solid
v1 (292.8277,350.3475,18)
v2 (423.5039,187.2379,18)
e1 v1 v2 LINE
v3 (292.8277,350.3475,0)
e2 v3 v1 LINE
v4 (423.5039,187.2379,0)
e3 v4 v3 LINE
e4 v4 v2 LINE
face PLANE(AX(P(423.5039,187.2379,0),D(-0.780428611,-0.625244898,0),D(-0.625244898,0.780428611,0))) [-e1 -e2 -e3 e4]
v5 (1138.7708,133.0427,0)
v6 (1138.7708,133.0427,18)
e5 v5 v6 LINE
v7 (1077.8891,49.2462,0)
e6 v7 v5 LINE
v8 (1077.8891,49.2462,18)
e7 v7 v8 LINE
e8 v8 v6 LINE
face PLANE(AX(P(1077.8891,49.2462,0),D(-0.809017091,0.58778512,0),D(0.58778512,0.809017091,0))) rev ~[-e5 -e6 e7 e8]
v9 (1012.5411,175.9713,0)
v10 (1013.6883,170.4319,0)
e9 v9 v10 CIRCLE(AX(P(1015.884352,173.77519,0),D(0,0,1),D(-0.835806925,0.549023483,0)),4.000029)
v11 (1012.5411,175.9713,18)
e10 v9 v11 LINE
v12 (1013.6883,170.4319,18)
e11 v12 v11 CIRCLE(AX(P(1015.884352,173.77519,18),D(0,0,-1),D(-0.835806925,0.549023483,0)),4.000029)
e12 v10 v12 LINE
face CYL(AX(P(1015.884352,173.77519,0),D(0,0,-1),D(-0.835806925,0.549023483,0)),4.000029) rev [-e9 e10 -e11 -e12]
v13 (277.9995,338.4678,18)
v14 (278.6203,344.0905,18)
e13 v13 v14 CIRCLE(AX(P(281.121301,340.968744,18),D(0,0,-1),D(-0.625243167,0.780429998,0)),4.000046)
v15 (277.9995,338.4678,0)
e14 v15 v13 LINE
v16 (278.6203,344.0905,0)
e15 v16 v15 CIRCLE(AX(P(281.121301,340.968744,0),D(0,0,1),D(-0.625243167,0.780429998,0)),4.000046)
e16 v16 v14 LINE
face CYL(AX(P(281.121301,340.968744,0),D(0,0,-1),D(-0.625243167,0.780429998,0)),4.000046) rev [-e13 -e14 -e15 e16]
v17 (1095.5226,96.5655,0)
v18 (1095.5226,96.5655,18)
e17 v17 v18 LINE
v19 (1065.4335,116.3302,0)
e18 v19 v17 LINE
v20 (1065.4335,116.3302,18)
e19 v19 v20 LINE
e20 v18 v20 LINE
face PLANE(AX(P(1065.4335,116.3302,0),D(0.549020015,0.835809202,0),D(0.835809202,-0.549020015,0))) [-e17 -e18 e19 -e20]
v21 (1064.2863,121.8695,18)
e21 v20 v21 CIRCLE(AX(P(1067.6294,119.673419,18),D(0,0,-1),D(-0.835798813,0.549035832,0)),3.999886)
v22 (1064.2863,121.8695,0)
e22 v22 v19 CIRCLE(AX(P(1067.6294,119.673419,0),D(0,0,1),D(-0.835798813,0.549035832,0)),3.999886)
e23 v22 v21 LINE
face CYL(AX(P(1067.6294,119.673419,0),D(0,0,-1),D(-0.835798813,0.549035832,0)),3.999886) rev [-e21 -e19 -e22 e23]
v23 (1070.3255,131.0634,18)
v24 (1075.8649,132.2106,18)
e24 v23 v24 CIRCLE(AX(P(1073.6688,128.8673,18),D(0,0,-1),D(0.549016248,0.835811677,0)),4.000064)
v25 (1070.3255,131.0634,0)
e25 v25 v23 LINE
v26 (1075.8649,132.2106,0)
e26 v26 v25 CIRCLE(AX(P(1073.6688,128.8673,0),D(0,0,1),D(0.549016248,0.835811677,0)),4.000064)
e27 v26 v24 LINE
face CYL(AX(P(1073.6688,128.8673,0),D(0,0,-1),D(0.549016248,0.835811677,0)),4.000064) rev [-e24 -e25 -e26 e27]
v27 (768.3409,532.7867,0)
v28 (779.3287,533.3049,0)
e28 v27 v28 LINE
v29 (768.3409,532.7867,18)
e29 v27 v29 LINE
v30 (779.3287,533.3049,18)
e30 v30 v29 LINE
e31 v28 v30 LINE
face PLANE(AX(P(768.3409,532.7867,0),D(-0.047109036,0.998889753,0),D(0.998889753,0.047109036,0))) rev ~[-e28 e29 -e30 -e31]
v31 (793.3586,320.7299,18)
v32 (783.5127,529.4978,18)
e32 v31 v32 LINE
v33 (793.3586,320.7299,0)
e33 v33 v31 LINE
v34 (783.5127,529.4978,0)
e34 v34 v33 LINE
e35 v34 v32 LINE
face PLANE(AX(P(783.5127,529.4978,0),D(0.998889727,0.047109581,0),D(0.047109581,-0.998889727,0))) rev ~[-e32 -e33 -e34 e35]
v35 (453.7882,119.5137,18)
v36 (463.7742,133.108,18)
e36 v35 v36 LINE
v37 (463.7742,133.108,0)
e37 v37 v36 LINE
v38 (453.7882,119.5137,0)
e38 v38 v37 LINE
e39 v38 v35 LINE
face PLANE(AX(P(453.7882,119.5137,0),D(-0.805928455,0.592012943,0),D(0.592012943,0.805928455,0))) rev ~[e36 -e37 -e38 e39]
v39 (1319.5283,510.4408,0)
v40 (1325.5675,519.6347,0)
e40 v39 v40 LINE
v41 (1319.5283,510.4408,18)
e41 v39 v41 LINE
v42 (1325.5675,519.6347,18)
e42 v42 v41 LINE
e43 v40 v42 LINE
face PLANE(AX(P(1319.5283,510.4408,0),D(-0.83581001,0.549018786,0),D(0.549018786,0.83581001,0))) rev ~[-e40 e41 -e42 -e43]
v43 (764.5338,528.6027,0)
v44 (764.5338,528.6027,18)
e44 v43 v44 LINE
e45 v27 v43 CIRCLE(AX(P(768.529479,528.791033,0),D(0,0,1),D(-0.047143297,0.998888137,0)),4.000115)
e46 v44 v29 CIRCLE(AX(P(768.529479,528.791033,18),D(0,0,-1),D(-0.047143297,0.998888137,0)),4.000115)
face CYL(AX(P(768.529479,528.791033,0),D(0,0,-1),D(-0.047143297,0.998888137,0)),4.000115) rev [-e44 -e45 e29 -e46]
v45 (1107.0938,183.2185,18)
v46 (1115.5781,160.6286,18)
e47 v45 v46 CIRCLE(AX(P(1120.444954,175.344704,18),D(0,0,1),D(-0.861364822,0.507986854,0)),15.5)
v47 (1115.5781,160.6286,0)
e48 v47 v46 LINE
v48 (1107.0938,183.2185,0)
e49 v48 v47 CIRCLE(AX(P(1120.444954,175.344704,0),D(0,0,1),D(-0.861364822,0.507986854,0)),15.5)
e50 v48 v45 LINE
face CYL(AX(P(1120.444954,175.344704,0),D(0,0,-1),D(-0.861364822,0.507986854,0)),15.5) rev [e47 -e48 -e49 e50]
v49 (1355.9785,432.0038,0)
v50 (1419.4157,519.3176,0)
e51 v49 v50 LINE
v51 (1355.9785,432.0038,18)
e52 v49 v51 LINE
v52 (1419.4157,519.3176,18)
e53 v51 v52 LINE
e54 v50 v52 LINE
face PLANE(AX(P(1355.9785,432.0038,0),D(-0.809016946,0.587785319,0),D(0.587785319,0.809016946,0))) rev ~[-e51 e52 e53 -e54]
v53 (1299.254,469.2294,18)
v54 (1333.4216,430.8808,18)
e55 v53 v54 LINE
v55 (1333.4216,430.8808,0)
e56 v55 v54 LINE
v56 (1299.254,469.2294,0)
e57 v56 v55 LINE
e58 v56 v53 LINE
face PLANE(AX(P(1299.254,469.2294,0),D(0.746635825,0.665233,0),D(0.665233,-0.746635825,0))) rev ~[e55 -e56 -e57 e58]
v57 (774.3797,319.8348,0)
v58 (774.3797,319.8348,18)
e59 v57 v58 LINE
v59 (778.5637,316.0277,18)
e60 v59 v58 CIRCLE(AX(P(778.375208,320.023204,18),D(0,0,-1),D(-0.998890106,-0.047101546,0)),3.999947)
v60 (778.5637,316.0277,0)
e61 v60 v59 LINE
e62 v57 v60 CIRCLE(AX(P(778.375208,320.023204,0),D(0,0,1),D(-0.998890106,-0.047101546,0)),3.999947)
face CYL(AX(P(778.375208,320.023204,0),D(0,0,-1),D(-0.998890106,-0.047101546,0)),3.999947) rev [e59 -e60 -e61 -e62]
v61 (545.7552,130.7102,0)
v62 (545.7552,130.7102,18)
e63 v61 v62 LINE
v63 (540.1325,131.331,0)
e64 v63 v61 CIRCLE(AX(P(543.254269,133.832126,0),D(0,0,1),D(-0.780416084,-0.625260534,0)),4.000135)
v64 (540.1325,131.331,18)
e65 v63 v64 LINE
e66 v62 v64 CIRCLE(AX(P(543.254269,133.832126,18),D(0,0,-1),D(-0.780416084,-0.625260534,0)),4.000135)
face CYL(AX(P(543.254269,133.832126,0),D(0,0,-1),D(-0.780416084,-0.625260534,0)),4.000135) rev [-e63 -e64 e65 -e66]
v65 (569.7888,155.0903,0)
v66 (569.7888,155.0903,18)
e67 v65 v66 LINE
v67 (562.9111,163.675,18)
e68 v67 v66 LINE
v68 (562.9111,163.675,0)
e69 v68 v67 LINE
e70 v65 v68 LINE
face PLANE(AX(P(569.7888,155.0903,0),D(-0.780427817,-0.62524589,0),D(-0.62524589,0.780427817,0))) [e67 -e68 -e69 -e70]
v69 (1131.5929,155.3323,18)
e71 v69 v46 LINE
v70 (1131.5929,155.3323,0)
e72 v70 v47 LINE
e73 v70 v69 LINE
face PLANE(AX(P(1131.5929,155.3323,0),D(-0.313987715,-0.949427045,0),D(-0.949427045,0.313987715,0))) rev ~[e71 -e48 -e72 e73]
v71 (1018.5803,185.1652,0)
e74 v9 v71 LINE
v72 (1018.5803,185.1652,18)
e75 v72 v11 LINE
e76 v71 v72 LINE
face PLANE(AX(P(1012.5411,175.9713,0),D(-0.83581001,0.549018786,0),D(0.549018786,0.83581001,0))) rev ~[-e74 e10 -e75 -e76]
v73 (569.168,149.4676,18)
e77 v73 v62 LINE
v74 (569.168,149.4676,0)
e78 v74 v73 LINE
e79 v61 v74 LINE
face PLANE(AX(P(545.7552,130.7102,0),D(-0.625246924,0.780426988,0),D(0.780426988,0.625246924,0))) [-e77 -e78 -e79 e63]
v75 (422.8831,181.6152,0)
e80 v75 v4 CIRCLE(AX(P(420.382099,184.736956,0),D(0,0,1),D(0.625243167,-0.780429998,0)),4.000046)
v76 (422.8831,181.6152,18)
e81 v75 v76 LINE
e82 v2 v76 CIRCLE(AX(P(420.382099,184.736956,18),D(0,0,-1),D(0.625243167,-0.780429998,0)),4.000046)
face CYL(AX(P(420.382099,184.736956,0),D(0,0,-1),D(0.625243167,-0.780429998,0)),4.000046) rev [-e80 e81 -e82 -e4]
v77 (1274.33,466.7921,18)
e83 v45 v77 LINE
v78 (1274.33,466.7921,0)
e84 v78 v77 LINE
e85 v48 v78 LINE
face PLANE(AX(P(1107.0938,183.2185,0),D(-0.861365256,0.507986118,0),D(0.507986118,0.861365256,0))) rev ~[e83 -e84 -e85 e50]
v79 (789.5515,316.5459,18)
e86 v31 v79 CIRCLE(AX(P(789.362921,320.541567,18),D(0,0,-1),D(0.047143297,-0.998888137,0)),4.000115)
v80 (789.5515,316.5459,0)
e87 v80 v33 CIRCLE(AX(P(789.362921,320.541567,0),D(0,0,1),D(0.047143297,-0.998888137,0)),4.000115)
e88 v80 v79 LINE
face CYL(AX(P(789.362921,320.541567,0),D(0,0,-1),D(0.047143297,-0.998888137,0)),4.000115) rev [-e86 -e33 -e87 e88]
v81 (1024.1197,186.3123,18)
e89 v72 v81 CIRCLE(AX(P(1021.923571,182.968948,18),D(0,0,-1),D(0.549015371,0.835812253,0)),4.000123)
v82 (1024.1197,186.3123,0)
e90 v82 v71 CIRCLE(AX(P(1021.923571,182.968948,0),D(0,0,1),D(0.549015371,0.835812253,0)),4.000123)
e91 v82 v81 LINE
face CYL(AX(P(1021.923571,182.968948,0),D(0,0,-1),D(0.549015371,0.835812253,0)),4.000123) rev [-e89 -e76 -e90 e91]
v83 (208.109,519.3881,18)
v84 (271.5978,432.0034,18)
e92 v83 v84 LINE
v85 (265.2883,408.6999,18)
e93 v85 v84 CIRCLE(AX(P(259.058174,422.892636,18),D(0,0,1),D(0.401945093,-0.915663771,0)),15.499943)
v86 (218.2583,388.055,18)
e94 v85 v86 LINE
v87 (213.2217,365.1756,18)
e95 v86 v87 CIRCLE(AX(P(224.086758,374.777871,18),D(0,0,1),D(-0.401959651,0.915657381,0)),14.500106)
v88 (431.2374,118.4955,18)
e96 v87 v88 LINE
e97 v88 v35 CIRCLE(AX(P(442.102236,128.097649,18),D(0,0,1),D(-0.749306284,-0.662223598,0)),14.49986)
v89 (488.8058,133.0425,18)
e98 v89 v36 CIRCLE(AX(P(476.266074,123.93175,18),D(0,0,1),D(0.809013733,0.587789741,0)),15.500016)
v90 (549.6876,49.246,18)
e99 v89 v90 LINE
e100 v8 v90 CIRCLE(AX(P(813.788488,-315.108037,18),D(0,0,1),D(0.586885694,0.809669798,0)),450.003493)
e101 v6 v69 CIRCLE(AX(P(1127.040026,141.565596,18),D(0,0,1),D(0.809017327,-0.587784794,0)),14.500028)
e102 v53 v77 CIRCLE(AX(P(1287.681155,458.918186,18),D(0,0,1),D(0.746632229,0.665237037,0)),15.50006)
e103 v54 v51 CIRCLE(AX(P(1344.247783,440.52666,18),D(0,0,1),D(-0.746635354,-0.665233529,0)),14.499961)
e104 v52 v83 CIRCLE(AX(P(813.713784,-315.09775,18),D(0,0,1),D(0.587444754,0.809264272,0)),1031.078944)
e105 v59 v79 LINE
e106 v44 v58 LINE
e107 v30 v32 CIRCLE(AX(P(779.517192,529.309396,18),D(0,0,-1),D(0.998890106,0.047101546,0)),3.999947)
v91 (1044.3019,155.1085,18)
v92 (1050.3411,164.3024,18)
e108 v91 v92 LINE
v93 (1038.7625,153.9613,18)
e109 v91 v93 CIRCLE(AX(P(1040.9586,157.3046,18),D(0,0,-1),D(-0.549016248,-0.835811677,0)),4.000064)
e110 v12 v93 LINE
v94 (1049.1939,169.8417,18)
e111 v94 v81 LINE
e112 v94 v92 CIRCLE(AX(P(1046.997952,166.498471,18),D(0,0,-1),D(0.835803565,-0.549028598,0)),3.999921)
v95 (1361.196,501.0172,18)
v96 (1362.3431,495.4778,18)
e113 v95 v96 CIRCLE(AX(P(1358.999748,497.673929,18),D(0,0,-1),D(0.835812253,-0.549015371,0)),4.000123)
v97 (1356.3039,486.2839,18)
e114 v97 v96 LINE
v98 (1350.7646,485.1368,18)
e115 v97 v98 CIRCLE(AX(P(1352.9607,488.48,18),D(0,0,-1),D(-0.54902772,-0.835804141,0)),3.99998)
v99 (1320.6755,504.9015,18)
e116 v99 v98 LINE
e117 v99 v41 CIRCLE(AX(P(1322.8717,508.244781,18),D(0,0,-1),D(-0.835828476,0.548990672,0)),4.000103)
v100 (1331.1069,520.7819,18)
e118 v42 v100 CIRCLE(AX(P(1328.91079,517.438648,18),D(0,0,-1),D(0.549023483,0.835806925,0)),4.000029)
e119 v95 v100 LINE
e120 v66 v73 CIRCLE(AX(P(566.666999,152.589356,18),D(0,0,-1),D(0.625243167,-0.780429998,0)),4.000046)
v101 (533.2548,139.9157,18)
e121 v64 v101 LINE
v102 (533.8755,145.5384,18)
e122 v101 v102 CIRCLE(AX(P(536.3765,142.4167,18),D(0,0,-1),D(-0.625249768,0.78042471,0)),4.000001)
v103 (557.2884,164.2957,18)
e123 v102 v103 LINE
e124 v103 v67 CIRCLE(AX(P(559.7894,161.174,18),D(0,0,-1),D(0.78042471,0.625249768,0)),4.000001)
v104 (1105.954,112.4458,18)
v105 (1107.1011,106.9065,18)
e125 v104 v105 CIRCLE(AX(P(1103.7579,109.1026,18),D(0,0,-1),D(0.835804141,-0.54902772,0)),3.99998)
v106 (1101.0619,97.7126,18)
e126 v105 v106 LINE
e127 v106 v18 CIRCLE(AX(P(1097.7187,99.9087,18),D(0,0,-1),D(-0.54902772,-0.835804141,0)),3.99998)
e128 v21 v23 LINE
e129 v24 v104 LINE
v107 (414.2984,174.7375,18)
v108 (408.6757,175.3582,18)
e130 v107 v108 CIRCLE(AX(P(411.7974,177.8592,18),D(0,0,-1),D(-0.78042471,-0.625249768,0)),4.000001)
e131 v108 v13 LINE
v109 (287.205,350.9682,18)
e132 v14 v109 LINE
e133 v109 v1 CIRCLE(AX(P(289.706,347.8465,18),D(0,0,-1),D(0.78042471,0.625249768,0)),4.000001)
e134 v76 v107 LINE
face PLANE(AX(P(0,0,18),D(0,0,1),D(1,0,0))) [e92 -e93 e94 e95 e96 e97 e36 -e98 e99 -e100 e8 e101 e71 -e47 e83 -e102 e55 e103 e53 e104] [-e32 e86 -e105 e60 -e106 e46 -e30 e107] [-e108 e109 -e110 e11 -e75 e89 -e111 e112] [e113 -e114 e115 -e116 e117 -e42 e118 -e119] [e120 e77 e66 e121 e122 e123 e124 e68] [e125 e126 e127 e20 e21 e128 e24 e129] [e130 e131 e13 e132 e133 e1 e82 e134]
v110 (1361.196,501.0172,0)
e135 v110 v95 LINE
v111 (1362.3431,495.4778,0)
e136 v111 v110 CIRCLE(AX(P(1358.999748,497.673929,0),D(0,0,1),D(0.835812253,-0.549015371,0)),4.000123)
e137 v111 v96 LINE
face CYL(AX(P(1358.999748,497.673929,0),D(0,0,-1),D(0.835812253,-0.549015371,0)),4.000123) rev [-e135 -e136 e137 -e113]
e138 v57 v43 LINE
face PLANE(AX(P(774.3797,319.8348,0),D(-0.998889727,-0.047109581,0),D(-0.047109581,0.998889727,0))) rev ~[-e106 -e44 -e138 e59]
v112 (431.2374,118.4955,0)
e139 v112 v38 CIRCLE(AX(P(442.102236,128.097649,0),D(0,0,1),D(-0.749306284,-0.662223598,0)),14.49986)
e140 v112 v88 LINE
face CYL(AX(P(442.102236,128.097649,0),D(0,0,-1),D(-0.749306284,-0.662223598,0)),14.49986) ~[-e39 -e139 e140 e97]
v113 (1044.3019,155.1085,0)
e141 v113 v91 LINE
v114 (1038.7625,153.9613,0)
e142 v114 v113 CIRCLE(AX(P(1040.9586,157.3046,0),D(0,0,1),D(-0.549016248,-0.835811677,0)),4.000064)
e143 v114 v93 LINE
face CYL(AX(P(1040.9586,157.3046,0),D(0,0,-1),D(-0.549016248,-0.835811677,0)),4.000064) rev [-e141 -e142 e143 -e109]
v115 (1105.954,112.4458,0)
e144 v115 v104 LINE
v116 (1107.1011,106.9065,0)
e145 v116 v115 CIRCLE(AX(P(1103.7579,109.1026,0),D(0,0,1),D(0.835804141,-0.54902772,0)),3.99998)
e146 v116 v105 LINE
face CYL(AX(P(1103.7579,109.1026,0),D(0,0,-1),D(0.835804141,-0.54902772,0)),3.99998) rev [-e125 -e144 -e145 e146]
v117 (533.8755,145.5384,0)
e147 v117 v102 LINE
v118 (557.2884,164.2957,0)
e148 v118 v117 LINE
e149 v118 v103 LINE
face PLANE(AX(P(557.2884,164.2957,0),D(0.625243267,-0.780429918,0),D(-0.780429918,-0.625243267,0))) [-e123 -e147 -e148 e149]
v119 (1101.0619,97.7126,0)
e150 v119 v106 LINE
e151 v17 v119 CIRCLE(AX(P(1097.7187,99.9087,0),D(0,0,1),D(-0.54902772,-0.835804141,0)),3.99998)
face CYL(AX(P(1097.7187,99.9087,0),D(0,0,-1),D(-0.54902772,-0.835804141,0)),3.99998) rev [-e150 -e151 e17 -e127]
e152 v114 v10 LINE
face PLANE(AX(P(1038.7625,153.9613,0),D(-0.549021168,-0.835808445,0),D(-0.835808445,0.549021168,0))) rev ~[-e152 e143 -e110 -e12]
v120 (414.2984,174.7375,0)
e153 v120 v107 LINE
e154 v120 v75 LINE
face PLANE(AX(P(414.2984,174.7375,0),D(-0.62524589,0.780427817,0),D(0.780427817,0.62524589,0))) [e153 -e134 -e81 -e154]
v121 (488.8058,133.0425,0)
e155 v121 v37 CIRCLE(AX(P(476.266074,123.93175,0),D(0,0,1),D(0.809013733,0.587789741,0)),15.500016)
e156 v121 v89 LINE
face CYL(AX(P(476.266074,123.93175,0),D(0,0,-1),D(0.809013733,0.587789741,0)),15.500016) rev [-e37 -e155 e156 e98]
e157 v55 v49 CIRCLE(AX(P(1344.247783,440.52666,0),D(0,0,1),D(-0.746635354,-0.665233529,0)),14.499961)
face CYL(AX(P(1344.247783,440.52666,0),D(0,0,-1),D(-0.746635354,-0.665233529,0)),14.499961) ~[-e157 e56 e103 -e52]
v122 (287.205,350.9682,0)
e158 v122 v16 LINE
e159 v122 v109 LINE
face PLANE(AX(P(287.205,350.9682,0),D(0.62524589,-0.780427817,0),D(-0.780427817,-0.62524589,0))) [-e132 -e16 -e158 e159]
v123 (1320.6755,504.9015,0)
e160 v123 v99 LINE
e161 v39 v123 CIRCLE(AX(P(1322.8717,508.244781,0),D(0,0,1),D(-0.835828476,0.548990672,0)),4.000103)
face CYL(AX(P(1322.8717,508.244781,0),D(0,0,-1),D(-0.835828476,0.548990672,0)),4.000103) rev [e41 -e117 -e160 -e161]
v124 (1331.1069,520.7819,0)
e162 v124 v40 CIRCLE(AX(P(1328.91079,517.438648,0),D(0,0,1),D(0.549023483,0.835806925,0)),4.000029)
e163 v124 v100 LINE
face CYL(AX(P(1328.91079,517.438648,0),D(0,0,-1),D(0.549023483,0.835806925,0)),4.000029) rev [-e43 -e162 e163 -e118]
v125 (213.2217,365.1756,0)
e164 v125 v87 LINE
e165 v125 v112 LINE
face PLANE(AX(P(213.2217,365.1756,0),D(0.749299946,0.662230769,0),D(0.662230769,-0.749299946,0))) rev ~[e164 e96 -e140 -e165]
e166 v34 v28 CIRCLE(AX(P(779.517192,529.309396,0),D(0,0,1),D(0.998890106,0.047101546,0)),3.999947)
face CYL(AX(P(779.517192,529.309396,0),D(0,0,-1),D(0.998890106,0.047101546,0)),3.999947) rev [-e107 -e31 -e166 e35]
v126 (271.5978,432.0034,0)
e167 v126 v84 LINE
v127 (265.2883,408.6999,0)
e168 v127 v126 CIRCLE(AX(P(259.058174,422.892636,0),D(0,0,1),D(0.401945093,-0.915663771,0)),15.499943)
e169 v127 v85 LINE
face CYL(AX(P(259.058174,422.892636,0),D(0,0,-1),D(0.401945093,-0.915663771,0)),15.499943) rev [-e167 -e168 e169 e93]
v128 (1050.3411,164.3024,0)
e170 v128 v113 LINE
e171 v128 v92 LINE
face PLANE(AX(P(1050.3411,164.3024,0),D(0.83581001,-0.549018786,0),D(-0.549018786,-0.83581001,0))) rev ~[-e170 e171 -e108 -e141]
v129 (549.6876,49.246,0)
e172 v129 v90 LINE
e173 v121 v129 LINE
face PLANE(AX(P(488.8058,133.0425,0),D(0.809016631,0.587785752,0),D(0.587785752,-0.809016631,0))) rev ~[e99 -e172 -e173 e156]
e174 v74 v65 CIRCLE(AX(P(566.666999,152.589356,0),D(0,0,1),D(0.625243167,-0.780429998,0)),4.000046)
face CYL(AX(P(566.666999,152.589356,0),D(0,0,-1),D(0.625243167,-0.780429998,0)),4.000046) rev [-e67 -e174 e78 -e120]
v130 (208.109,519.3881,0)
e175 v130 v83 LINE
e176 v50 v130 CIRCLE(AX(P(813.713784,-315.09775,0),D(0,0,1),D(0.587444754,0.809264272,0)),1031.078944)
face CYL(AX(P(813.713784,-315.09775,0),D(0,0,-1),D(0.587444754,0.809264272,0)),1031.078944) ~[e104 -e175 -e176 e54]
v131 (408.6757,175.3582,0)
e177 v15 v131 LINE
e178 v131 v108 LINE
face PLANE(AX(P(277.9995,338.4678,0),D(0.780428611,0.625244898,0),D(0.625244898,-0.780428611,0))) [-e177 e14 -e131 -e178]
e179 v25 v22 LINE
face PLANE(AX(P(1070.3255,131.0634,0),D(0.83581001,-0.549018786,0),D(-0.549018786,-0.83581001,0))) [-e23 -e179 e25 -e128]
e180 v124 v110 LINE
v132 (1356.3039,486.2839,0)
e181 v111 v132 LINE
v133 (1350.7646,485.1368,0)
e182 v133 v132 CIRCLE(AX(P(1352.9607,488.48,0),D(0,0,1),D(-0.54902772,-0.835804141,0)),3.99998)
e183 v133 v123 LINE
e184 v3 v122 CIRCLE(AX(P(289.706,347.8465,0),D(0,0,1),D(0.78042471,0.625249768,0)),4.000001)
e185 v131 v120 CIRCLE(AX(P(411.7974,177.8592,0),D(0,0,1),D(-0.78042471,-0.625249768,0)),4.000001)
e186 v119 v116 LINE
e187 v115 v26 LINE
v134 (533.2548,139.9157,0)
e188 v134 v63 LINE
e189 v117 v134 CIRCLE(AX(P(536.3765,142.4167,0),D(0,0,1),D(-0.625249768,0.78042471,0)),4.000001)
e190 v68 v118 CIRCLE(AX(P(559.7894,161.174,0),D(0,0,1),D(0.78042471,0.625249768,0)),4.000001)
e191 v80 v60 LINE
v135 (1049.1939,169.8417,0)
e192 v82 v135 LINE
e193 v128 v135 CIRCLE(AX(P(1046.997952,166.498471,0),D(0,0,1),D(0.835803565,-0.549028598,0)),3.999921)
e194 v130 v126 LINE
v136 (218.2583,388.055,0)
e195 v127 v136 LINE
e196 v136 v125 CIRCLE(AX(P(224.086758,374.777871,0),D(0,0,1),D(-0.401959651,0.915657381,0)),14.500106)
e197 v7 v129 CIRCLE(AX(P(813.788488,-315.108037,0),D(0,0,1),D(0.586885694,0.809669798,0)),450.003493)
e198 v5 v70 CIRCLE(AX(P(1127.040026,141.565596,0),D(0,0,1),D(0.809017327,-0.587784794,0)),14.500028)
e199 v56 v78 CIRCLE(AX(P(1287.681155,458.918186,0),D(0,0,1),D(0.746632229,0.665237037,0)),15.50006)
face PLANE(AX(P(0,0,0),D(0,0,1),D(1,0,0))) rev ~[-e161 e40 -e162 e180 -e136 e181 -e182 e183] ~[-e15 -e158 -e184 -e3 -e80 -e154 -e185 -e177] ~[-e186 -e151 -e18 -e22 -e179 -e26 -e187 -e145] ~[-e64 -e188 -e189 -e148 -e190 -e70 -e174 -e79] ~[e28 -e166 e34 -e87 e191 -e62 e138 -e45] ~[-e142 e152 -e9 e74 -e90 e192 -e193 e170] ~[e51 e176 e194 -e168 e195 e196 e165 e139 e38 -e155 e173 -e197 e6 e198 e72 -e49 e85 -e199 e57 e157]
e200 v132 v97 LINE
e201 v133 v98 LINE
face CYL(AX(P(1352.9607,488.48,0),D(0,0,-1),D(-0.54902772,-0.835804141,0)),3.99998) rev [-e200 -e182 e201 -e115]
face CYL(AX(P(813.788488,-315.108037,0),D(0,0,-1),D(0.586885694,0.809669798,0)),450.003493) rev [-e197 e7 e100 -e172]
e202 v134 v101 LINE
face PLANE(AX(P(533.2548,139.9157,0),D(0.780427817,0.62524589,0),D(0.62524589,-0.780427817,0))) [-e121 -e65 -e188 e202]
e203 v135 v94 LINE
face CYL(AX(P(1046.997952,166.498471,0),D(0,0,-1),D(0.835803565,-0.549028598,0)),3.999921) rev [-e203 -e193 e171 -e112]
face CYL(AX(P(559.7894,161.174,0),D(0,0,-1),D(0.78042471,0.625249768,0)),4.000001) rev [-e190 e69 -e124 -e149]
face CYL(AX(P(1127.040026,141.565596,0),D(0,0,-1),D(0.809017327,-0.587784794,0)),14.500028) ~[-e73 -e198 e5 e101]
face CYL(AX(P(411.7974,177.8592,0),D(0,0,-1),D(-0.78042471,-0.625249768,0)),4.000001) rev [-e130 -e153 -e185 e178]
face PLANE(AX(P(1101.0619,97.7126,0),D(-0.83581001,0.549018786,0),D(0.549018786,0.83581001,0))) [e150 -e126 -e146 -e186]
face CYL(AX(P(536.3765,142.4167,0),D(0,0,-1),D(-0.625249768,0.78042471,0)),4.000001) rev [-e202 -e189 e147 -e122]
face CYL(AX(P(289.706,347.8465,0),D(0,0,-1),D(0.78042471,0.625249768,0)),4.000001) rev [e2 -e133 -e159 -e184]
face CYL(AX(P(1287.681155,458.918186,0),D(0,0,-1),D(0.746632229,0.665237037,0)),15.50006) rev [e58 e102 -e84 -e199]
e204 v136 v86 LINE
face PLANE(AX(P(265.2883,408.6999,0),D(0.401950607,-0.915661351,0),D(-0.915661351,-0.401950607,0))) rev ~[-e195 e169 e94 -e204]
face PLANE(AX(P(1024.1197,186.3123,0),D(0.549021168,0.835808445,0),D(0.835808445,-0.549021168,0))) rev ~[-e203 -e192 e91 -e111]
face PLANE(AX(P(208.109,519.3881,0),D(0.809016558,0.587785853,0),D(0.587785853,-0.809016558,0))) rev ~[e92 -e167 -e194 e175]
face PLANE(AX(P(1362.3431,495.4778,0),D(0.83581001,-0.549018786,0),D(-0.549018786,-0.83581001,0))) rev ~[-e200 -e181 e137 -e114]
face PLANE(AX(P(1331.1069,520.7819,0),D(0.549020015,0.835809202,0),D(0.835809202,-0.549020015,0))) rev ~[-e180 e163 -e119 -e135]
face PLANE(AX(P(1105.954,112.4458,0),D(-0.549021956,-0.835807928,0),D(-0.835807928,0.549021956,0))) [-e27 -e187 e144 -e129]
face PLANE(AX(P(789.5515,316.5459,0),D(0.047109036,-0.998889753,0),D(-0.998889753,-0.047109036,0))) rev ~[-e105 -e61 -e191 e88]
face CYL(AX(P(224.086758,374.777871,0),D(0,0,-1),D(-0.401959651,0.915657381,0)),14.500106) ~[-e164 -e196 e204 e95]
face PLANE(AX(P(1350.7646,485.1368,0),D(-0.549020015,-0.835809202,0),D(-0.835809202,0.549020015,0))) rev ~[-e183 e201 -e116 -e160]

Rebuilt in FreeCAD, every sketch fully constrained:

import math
import FreeCAD as App
import Part
import Sketcher
Q = App.Units.Quantity

doc = App.newDocument("Part")
body = doc.addObject("PartDesign::Body", "Body")

sketch1 = doc.addObject("Sketcher::SketchObject", "Sketch")
body.addObject(sketch1)
sketch1.AttachmentSupport = (doc.XY_Plane, [""])
sketch1.MapMode = "FlatFace"
sketch1.addGeometry([
    Part.LineSegment(App.Vector(1077.8891, 49.2462, 0), App.Vector(1138.7708, 133.0427, 0)),
    Part.ArcOfCircle(Part.Circle(App.Vector(1127.04, 141.5656, 0), App.Vector(0, 0, 1), 14.500051), math.radians(-35.99992), math.radians(71.700003)),
    Part.LineSegment(App.Vector(1131.5929, 155.3323, 0), App.Vector(1115.5781, 160.6286, 0)),
    Part.ArcOfCircle(Part.Circle(App.Vector(1120.445, 175.3447, 0), App.Vector(0, 0, 1), 15.500041), math.radians(149.470245), math.radians(251.699946)),
    Part.LineSegment(App.Vector(1107.0938, 183.2185, 0), App.Vector(1274.33, 466.7921, 0)),
    Part.ArcOfCircle(Part.Circle(App.Vector(1287.6812, 458.9183, 0), App.Vector(0, 0, 1), 15.499951), math.radians(41.700307), math.radians(149.470245)),
    Part.LineSegment(App.Vector(1299.254, 469.2294, 0), App.Vector(1333.4216, 430.8808, 0)),
    Part.ArcOfCircle(Part.Circle(App.Vector(1344.2478, 440.5267, 0), App.Vector(0, 0, 1), 14.5), math.radians(-138.299682), math.radians(-36.000152)),
    Part.LineSegment(App.Vector(1355.9785, 432.0038, 0), App.Vector(1419.4157, 519.3176, 0)),
    Part.ArcOfCircle(Part.Circle(App.Vector(813.7138, -315.0977, 0), App.Vector(0, 0, 1), 1031.078893), math.radians(54.02411), math.radians(125.969222)),
    Part.LineSegment(App.Vector(208.109, 519.3881, 0), App.Vector(271.5978, 432.0034, 0)),
    Part.ArcOfCircle(Part.Circle(App.Vector(259.0581, 422.8927, 0), App.Vector(0, 0, 1), 15.500031), math.radians(-66.300012), math.radians(36.000223)),
    Part.LineSegment(App.Vector(265.2883, 408.6999, 0), App.Vector(218.2583, 388.055, 0)),
    Part.ArcOfCircle(Part.Circle(App.Vector(224.0866, 374.778, 0), App.Vector(0, 0, 1), 14.499924), math.radians(113.700378), math.radians(221.470253)),
    Part.LineSegment(App.Vector(213.2217, 365.1756, 0), App.Vector(431.2374, 118.4955, 0)),
    Part.ArcOfCircle(Part.Circle(App.Vector(442.1023, 128.0978, 0), App.Vector(0, 0, 1), 14.500007), math.radians(-138.530043), math.radians(-36.29985)),
    Part.LineSegment(App.Vector(453.7882, 119.5137, 0), App.Vector(463.7742, 133.108, 0)),
    Part.ArcOfCircle(Part.Circle(App.Vector(476.2661, 123.9318, 0), App.Vector(0, 0, 1), 15.499966), math.radians(36.000223), math.radians(143.700038)),
    Part.LineSegment(App.Vector(488.8058, 133.0425, 0), App.Vector(549.6876, 49.246, 0)),
    Part.ArcOfCircle(Part.Circle(App.Vector(813.7885, -315.108, 0), App.Vector(0, 0, 1), 450.003456), math.radians(54.063681), math.radians(125.936365)),
], False)
sketch1.addConstraint([
    Sketcher.Constraint("Tangent", 0, 2, 1, 1),
    Sketcher.Constraint("Tangent", 1, 2, 2, 1),
    Sketcher.Constraint("Tangent", 2, 2, 3, 2),
    Sketcher.Constraint("Tangent", 3, 1, 4, 1),
    Sketcher.Constraint("Tangent", 4, 2, 5, 2),
    Sketcher.Constraint("Tangent", 5, 1, 6, 1),
    Sketcher.Constraint("Tangent", 6, 2, 7, 1),
    Sketcher.Constraint("Tangent", 7, 2, 8, 1),
    Sketcher.Constraint("Coincident", 8, 2, 9, 1),
    Sketcher.Constraint("Coincident", 9, 2, 10, 1),
    Sketcher.Constraint("Tangent", 10, 2, 11, 2),
    Sketcher.Constraint("Tangent", 11, 1, 12, 1),
    Sketcher.Constraint("Tangent", 12, 2, 13, 1),
    Sketcher.Constraint("Tangent", 13, 2, 14, 1),
    Sketcher.Constraint("Tangent", 14, 2, 15, 1),
    Sketcher.Constraint("Tangent", 15, 2, 16, 1),
    Sketcher.Constraint("Tangent", 16, 2, 17, 2),
    Sketcher.Constraint("Tangent", 17, 1, 18, 1),
    Sketcher.Constraint("Coincident", 18, 2, 19, 2),
    Sketcher.Constraint("Coincident", 19, 1, 0, 1),
    Sketcher.Constraint("Equal", 3, 5),
    Sketcher.Constraint("Equal", 1, 7),
    Sketcher.Constraint("Equal", 5, 11),
    Sketcher.Constraint("Equal", 7, 13),
    Sketcher.Constraint("Equal", 13, 15),
    Sketcher.Constraint("Equal", 11, 17),
    Sketcher.Constraint("Parallel", 0, 8),
    Sketcher.Constraint("Parallel", 10, 18),
    Sketcher.Constraint("Horizontal", 18, 2, 19, 1),
    Sketcher.Constraint("Equal", 6, 12),
    Sketcher.Constraint("Equal", 4, 14),
    Sketcher.Constraint("Equal", 2, 16),
    Sketcher.Constraint("Equal", 0, 18),
    Sketcher.Constraint("Radius", 1, 14.5),
    Sketcher.Constraint("Radius", 3, 15.5),
    Sketcher.Constraint("Angle", 0, Q("54 deg")),
    Sketcher.Constraint("Angle", 10, Q("-54 deg")),
    Sketcher.Constraint("Angle", 2, Q("161.7003 deg")),
    Sketcher.Constraint("Angle", 6, Q("-48.2998 deg")),
    Sketcher.Constraint("Angle", 12, Q("-156.2998 deg")),
    Sketcher.Constraint("Angle", 16, Q("53.7 deg")),
    Sketcher.Constraint("Radius", 9, 1031.079),
    Sketcher.Constraint("DistanceY", -1, 1, 11, 1, 408.7),
    Sketcher.Constraint("Angle", 4, Q("59.4702 deg")),
    Sketcher.Constraint("Angle", 14, Q("-48.5298 deg")),
    Sketcher.Constraint("Radius", 19, 450.0035),
    Sketcher.Constraint("DistanceX", -1, 1, 1, 3, 1127.04),
    Sketcher.Constraint("DistanceX", -1, 1, 4, 2, 1274.33),
    Sketcher.Constraint("DistanceX", 12, 2, 11, 1, 47.03),
    Sketcher.Constraint("Distance", 4, 329.214),
    Sketcher.Constraint("DistanceX", -1, 1, 11, 3, 259.058),
    Sketcher.Constraint("DistanceY", 19, 3, -1, 1, 315.108),
    Sketcher.Constraint("DistanceY", 9, 3, 5, 3, 774.016),
    Sketcher.Constraint("DistanceX", 9, 3, 7, 3, 530.534),
])
pad1 = doc.addObject("PartDesign::Pad", "Pad")
body.addObject(pad1)
pad1.Profile = sketch1
pad1.Length = 18

sketch2 = doc.addObject("Sketcher::SketchObject", "Sketch001")
body.addObject(sketch2)
sketch2.AttachmentSupport = (doc.XY_Plane, [""])
sketch2.MapMode = "FlatFace"
sketch2.addGeometry([
    Part.ArcOfCircle(Part.Circle(App.Vector(289.706, 347.8465, 0), App.Vector(0, 0, 1), 4.000001), math.radians(38.700522), math.radians(128.700522)),
    Part.LineSegment(App.Vector(287.205, 350.9682, 0), App.Vector(278.6203, 344.0905, 0)),
    Part.ArcOfCircle(Part.Circle(App.Vector(281.1212, 340.9688, 0), App.Vector(0, 0, 1), 3.999939), math.radians(128.699404), math.radians(218.700522)),
    Part.LineSegment(App.Vector(277.9995, 338.4678, 0), App.Vector(408.6757, 175.3582, 0)),
    Part.ArcOfCircle(Part.Circle(App.Vector(411.7974, 177.8592, 0), App.Vector(0, 0, 1), 4.000001), math.radians(-141.299478), math.radians(-51.299478)),
    Part.LineSegment(App.Vector(414.2984, 174.7375, 0), App.Vector(422.8831, 181.6152, 0)),
    Part.ArcOfCircle(Part.Circle(App.Vector(420.3822, 184.7369, 0), App.Vector(0, 0, 1), 3.999939), math.radians(-51.300596), math.radians(38.700522)),
    Part.LineSegment(App.Vector(423.5039, 187.2379, 0), App.Vector(292.8277, 350.3475, 0)),
    Part.LineSegment(App.Vector(793.3586, 320.7299, 0), App.Vector(783.5127, 529.4978, 0)),
    Part.ArcOfCircle(Part.Circle(App.Vector(779.5172, 529.3094, 0), App.Vector(0, 0, 1), 3.999939), math.radians(2.699671), math.radians(92.701102)),
    Part.LineSegment(App.Vector(779.3287, 533.3049, 0), App.Vector(768.3409, 532.7867, 0)),
    Part.ArcOfCircle(Part.Circle(App.Vector(768.5294, 528.7912, 0), App.Vector(0, 0, 1), 3.999944), math.radians(92.701102), math.radians(182.701034)),
    Part.LineSegment(App.Vector(764.5338, 528.6027, 0), App.Vector(774.3797, 319.8348, 0)),
    Part.ArcOfCircle(Part.Circle(App.Vector(778.3752, 320.0232, 0), App.Vector(0, 0, 1), 3.999939), math.radians(-177.300329), math.radians(-87.298898)),
    Part.LineSegment(App.Vector(778.5637, 316.0277, 0), App.Vector(789.5515, 316.5459, 0)),
    Part.ArcOfCircle(Part.Circle(App.Vector(789.363, 320.5414, 0), App.Vector(0, 0, 1), 3.999944), math.radians(-87.298898), math.radians(2.701034)),
    Part.ArcOfCircle(Part.Circle(App.Vector(566.6671, 152.5893, 0), App.Vector(0, 0, 1), 3.999939), math.radians(-51.300596), math.radians(38.700522)),
    Part.LineSegment(App.Vector(569.7888, 155.0903, 0), App.Vector(562.9111, 163.675, 0)),
    Part.ArcOfCircle(Part.Circle(App.Vector(559.7894, 161.174, 0), App.Vector(0, 0, 1), 4.000001), math.radians(38.700522), math.radians(128.700522)),
    Part.LineSegment(App.Vector(557.2884, 164.2957, 0), App.Vector(533.8755, 145.5384, 0)),
    Part.ArcOfCircle(Part.Circle(App.Vector(536.3765, 142.4167, 0), App.Vector(0, 0, 1), 4.000001), math.radians(128.700522), math.radians(218.700522)),
    Part.LineSegment(App.Vector(533.2548, 139.9157, 0), App.Vector(540.1325, 131.331, 0)),
    Part.ArcOfCircle(Part.Circle(App.Vector(543.2542, 133.832, 0), App.Vector(0, 0, 1), 4.000001), math.radians(-141.299478), math.radians(-51.300374)),
    Part.LineSegment(App.Vector(545.7552, 130.7102, 0), App.Vector(569.168, 149.4676, 0)),
    Part.LineSegment(App.Vector(1018.5803, 185.1652, 0), App.Vector(1012.5411, 175.9713, 0)),
    Part.ArcOfCircle(Part.Circle(App.Vector(1015.8843, 173.7752, 0), App.Vector(0, 0, 1), 3.99998), math.radians(146.699664), math.radians(236.701648)),
    Part.LineSegment(App.Vector(1013.6883, 170.4319, 0), App.Vector(1038.7625, 153.9613, 0)),
    Part.ArcOfCircle(Part.Circle(App.Vector(1040.9586, 157.3046, 0), App.Vector(0, 0, 1), 4.000064), math.radians(-123.29955), math.radians(-33.29955)),
    Part.LineSegment(App.Vector(1044.3019, 155.1085, 0), App.Vector(1050.3411, 164.3024, 0)),
    Part.ArcOfCircle(Part.Circle(App.Vector(1046.9978, 166.4985, 0), App.Vector(0, 0, 1), 4.000064), math.radians(-33.29955), math.radians(56.699664)),
    Part.LineSegment(App.Vector(1049.1939, 169.8417, 0), App.Vector(1024.1197, 186.3123, 0)),
    Part.ArcOfCircle(Part.Circle(App.Vector(1021.9236, 182.9691, 0), App.Vector(0, 0, 1), 3.99998), math.radians(56.699664), math.radians(146.70045)),
    Part.ArcOfCircle(Part.Circle(App.Vector(1097.7187, 99.9087, 0), App.Vector(0, 0, 1), 3.99998), math.radians(-123.300336), math.radians(-33.300336)),
    Part.LineSegment(App.Vector(1101.0619, 97.7126, 0), App.Vector(1107.1011, 106.9065, 0)),
    Part.ArcOfCircle(Part.Circle(App.Vector(1103.7579, 109.1026, 0), App.Vector(0, 0, 1), 3.99998), math.radians(-33.300336), math.radians(56.699664)),
    Part.LineSegment(App.Vector(1105.954, 112.4458, 0), App.Vector(1075.8649, 132.2106, 0)),
    Part.ArcOfCircle(Part.Circle(App.Vector(1073.6688, 128.8673, 0), App.Vector(0, 0, 1), 4.000064), math.radians(56.70045), math.radians(146.70045)),
    Part.LineSegment(App.Vector(1070.3255, 131.0634, 0), App.Vector(1064.2863, 121.8695, 0)),
    Part.ArcOfCircle(Part.Circle(App.Vector(1067.6295, 119.6734, 0), App.Vector(0, 0, 1), 3.99998), math.radians(146.699664), math.radians(236.700861)),
    Part.LineSegment(App.Vector(1065.4335, 116.3302, 0), App.Vector(1095.5226, 96.5655, 0)),
    Part.LineSegment(App.Vector(1356.3039, 486.2839, 0), App.Vector(1362.3431, 495.4778, 0)),
    Part.ArcOfCircle(Part.Circle(App.Vector(1358.9999, 497.6739, 0), App.Vector(0, 0, 1), 3.99998), math.radians(-33.300336), math.radians(56.70045)),
    Part.LineSegment(App.Vector(1361.196, 501.0172, 0), App.Vector(1331.1069, 520.7819, 0)),
    Part.ArcOfCircle(Part.Circle(App.Vector(1328.9108, 517.4387, 0), App.Vector(0, 0, 1), 3.99998), math.radians(56.699664), math.radians(146.701648)),
    Part.LineSegment(App.Vector(1325.5675, 519.6347, 0), App.Vector(1319.5283, 510.4408, 0)),
    Part.ArcOfCircle(Part.Circle(App.Vector(1322.8716, 508.2448, 0), App.Vector(0, 0, 1), 4.000009), math.radians(146.701648), math.radians(236.70045)),
    Part.LineSegment(App.Vector(1320.6755, 504.9015, 0), App.Vector(1350.7646, 485.1368, 0)),
    Part.ArcOfCircle(Part.Circle(App.Vector(1352.9607, 488.48, 0), App.Vector(0, 0, 1), 3.99998), math.radians(-123.300336), math.radians(-33.300336)),
], False)
sketch2.addConstraint([
    Sketcher.Constraint("Tangent", 0, 2, 1, 1),
    Sketcher.Constraint("Tangent", 1, 2, 2, 1),
    Sketcher.Constraint("Tangent", 2, 2, 3, 1),
    Sketcher.Constraint("Tangent", 3, 2, 4, 1),
    Sketcher.Constraint("Tangent", 4, 2, 5, 1),
    Sketcher.Constraint("Tangent", 5, 2, 6, 1),
    Sketcher.Constraint("Tangent", 6, 2, 7, 1),
    Sketcher.Constraint("Tangent", 7, 2, 0, 1),
    Sketcher.Constraint("Tangent", 8, 2, 9, 1),
    Sketcher.Constraint("Tangent", 9, 2, 10, 1),
    Sketcher.Constraint("Tangent", 10, 2, 11, 1),
    Sketcher.Constraint("Tangent", 11, 2, 12, 1),
    Sketcher.Constraint("Tangent", 12, 2, 13, 1),
    Sketcher.Constraint("Tangent", 13, 2, 14, 1),
    Sketcher.Constraint("Tangent", 14, 2, 15, 1),
    Sketcher.Constraint("Tangent", 15, 2, 8, 1),
    Sketcher.Constraint("Tangent", 16, 2, 17, 1),
    Sketcher.Constraint("Tangent", 17, 2, 18, 1),
    Sketcher.Constraint("Tangent", 18, 2, 19, 1),
    Sketcher.Constraint("Tangent", 19, 2, 20, 1),
    Sketcher.Constraint("Tangent", 20, 2, 21, 1),
    Sketcher.Constraint("Tangent", 21, 2, 22, 1),
    Sketcher.Constraint("Tangent", 22, 2, 23, 1),
    Sketcher.Constraint("Tangent", 23, 2, 16, 1),
    Sketcher.Constraint("Tangent", 24, 2, 25, 1),
    Sketcher.Constraint("Tangent", 25, 2, 26, 1),
    Sketcher.Constraint("Tangent", 26, 2, 27, 1),
    Sketcher.Constraint("Tangent", 27, 2, 28, 1),
    Sketcher.Constraint("Tangent", 28, 2, 29, 1),
    Sketcher.Constraint("Tangent", 29, 2, 30, 1),
    Sketcher.Constraint("Tangent", 30, 2, 31, 1),
    Sketcher.Constraint("Tangent", 31, 2, 24, 1),
    Sketcher.Constraint("Tangent", 32, 2, 33, 1),
    Sketcher.Constraint("Tangent", 33, 2, 34, 1),
    Sketcher.Constraint("Tangent", 34, 2, 35, 1),
    Sketcher.Constraint("Tangent", 35, 2, 36, 1),
    Sketcher.Constraint("Tangent", 36, 2, 37, 1),
    Sketcher.Constraint("Tangent", 37, 2, 38, 1),
    Sketcher.Constraint("Tangent", 38, 2, 39, 1),
    Sketcher.Constraint("Tangent", 39, 2, 32, 1),
    Sketcher.Constraint("Tangent", 40, 2, 41, 1),
    Sketcher.Constraint("Tangent", 41, 2, 42, 1),
    Sketcher.Constraint("Tangent", 42, 2, 43, 1),
    Sketcher.Constraint("Tangent", 43, 2, 44, 1),
    Sketcher.Constraint("Tangent", 44, 2, 45, 1),
    Sketcher.Constraint("Tangent", 45, 2, 46, 1),
    Sketcher.Constraint("Tangent", 46, 2, 47, 1),
    Sketcher.Constraint("Tangent", 47, 2, 40, 1),
    Sketcher.Constraint("Equal", 0, 2),
    Sketcher.Constraint("Equal", 2, 4),
    Sketcher.Constraint("Equal", 4, 6),
    Sketcher.Constraint("Equal", 6, 9),
    Sketcher.Constraint("Equal", 9, 11),
    Sketcher.Constraint("Equal", 11, 13),
    Sketcher.Constraint("Equal", 13, 15),
    Sketcher.Constraint("Equal", 15, 16),
    Sketcher.Constraint("Equal", 16, 18),
    Sketcher.Constraint("Equal", 18, 20),
    Sketcher.Constraint("Equal", 20, 22),
    Sketcher.Constraint("Equal", 22, 25),
    Sketcher.Constraint("Equal", 25, 27),
    Sketcher.Constraint("Equal", 27, 29),
    Sketcher.Constraint("Equal", 29, 31),
    Sketcher.Constraint("Equal", 31, 32),
    Sketcher.Constraint("Equal", 32, 34),
    Sketcher.Constraint("Equal", 34, 36),
    Sketcher.Constraint("Equal", 36, 38),
    Sketcher.Constraint("Equal", 38, 41),
    Sketcher.Constraint("Equal", 41, 43),
    Sketcher.Constraint("Equal", 43, 45),
    Sketcher.Constraint("Equal", 45, 47),
    Sketcher.Constraint("Perpendicular", 1, 3),
    Sketcher.Constraint("Perpendicular", 3, 5),
    Sketcher.Constraint("Perpendicular", 5, 7),
    Sketcher.Constraint("Perpendicular", 8, 10),
    Sketcher.Constraint("Perpendicular", 10, 12),
    Sketcher.Constraint("Perpendicular", 12, 14),
    Sketcher.Constraint("Parallel", 7, 17),
    Sketcher.Constraint("Perpendicular", 17, 19),
    Sketcher.Constraint("Perpendicular", 19, 21),
    Sketcher.Constraint("Perpendicular", 21, 23),
    Sketcher.Constraint("Perpendicular", 24, 26),
    Sketcher.Constraint("Perpendicular", 26, 28),
    Sketcher.Constraint("Perpendicular", 28, 30),
    Sketcher.Constraint("Perpendicular", 30, 33),
    Sketcher.Constraint("Perpendicular", 33, 35),
    Sketcher.Constraint("Perpendicular", 35, 37),
    Sketcher.Constraint("Perpendicular", 37, 39),
    Sketcher.Constraint("Perpendicular", 39, 40),
    Sketcher.Constraint("Perpendicular", 40, 42),
    Sketcher.Constraint("Perpendicular", 42, 44),
    Sketcher.Constraint("Perpendicular", 44, 46),
    Sketcher.Constraint("Equal", 7, 8),
    Sketcher.Constraint("Equal", 5, 10),
    Sketcher.Constraint("Equal", 14, 17),
    Sketcher.Constraint("Equal", 21, 24),
    Sketcher.Constraint("Equal", 23, 26),
    Sketcher.Constraint("Equal", 28, 33),
    Sketcher.Constraint("Equal", 37, 40),
    Sketcher.Constraint("Equal", 39, 42),
    Sketcher.Constraint("Radius", 0, 4.0),
    Sketcher.Constraint("Distance", 1, 11.0),
    Sketcher.Constraint("Distance", 3, 209.0),
    Sketcher.Constraint("Distance", 19, 30.0),
    Sketcher.Constraint("Distance", 35, 36.0),
    Sketcher.Constraint("DistanceX", -1, 1, 41, 3, 1359.0),
    Sketcher.Constraint("Angle", 1, Q("-141.2998 deg")),
    Sketcher.Constraint("Angle", 8, Q("92.7002 deg")),
    Sketcher.Constraint("Angle", 24, Q("-123.2997 deg")),
    Sketcher.Constraint("DistanceY", -1, 1, 47, 3, 488.48),
    Sketcher.Constraint("DistanceY", -1, 1, 15, 2, 320.73),
    Sketcher.Constraint("DistanceX", -1, 1, 0, 3, 289.706),
    Sketcher.Constraint("DistanceY", -1, 1, 6, 3, 184.737),
    Sketcher.Constraint("DistanceX", -1, 1, 15, 3, 789.363),
    Sketcher.Constraint("DistanceX", -1, 1, 16, 3, 566.667),
    Sketcher.Constraint("DistanceY", -1, 1, 18, 3, 161.174),
    Sketcher.Constraint("DistanceY", -1, 1, 31, 3, 182.969),
    Sketcher.Constraint("DistanceX", -1, 1, 34, 3, 1103.758),
    Sketcher.Constraint("DistanceX", -1, 1, 24, 2, 1012.541),
    Sketcher.Constraint("DistanceY", -1, 1, 32, 3, 99.9087),
])
pocket1 = doc.addObject("PartDesign::Pocket", "Pocket")
body.addObject(pocket1)
pocket1.Profile = sketch2
pocket1.Type = "ThroughAll"
pocket1.Reversed = True

doc.recompute()
